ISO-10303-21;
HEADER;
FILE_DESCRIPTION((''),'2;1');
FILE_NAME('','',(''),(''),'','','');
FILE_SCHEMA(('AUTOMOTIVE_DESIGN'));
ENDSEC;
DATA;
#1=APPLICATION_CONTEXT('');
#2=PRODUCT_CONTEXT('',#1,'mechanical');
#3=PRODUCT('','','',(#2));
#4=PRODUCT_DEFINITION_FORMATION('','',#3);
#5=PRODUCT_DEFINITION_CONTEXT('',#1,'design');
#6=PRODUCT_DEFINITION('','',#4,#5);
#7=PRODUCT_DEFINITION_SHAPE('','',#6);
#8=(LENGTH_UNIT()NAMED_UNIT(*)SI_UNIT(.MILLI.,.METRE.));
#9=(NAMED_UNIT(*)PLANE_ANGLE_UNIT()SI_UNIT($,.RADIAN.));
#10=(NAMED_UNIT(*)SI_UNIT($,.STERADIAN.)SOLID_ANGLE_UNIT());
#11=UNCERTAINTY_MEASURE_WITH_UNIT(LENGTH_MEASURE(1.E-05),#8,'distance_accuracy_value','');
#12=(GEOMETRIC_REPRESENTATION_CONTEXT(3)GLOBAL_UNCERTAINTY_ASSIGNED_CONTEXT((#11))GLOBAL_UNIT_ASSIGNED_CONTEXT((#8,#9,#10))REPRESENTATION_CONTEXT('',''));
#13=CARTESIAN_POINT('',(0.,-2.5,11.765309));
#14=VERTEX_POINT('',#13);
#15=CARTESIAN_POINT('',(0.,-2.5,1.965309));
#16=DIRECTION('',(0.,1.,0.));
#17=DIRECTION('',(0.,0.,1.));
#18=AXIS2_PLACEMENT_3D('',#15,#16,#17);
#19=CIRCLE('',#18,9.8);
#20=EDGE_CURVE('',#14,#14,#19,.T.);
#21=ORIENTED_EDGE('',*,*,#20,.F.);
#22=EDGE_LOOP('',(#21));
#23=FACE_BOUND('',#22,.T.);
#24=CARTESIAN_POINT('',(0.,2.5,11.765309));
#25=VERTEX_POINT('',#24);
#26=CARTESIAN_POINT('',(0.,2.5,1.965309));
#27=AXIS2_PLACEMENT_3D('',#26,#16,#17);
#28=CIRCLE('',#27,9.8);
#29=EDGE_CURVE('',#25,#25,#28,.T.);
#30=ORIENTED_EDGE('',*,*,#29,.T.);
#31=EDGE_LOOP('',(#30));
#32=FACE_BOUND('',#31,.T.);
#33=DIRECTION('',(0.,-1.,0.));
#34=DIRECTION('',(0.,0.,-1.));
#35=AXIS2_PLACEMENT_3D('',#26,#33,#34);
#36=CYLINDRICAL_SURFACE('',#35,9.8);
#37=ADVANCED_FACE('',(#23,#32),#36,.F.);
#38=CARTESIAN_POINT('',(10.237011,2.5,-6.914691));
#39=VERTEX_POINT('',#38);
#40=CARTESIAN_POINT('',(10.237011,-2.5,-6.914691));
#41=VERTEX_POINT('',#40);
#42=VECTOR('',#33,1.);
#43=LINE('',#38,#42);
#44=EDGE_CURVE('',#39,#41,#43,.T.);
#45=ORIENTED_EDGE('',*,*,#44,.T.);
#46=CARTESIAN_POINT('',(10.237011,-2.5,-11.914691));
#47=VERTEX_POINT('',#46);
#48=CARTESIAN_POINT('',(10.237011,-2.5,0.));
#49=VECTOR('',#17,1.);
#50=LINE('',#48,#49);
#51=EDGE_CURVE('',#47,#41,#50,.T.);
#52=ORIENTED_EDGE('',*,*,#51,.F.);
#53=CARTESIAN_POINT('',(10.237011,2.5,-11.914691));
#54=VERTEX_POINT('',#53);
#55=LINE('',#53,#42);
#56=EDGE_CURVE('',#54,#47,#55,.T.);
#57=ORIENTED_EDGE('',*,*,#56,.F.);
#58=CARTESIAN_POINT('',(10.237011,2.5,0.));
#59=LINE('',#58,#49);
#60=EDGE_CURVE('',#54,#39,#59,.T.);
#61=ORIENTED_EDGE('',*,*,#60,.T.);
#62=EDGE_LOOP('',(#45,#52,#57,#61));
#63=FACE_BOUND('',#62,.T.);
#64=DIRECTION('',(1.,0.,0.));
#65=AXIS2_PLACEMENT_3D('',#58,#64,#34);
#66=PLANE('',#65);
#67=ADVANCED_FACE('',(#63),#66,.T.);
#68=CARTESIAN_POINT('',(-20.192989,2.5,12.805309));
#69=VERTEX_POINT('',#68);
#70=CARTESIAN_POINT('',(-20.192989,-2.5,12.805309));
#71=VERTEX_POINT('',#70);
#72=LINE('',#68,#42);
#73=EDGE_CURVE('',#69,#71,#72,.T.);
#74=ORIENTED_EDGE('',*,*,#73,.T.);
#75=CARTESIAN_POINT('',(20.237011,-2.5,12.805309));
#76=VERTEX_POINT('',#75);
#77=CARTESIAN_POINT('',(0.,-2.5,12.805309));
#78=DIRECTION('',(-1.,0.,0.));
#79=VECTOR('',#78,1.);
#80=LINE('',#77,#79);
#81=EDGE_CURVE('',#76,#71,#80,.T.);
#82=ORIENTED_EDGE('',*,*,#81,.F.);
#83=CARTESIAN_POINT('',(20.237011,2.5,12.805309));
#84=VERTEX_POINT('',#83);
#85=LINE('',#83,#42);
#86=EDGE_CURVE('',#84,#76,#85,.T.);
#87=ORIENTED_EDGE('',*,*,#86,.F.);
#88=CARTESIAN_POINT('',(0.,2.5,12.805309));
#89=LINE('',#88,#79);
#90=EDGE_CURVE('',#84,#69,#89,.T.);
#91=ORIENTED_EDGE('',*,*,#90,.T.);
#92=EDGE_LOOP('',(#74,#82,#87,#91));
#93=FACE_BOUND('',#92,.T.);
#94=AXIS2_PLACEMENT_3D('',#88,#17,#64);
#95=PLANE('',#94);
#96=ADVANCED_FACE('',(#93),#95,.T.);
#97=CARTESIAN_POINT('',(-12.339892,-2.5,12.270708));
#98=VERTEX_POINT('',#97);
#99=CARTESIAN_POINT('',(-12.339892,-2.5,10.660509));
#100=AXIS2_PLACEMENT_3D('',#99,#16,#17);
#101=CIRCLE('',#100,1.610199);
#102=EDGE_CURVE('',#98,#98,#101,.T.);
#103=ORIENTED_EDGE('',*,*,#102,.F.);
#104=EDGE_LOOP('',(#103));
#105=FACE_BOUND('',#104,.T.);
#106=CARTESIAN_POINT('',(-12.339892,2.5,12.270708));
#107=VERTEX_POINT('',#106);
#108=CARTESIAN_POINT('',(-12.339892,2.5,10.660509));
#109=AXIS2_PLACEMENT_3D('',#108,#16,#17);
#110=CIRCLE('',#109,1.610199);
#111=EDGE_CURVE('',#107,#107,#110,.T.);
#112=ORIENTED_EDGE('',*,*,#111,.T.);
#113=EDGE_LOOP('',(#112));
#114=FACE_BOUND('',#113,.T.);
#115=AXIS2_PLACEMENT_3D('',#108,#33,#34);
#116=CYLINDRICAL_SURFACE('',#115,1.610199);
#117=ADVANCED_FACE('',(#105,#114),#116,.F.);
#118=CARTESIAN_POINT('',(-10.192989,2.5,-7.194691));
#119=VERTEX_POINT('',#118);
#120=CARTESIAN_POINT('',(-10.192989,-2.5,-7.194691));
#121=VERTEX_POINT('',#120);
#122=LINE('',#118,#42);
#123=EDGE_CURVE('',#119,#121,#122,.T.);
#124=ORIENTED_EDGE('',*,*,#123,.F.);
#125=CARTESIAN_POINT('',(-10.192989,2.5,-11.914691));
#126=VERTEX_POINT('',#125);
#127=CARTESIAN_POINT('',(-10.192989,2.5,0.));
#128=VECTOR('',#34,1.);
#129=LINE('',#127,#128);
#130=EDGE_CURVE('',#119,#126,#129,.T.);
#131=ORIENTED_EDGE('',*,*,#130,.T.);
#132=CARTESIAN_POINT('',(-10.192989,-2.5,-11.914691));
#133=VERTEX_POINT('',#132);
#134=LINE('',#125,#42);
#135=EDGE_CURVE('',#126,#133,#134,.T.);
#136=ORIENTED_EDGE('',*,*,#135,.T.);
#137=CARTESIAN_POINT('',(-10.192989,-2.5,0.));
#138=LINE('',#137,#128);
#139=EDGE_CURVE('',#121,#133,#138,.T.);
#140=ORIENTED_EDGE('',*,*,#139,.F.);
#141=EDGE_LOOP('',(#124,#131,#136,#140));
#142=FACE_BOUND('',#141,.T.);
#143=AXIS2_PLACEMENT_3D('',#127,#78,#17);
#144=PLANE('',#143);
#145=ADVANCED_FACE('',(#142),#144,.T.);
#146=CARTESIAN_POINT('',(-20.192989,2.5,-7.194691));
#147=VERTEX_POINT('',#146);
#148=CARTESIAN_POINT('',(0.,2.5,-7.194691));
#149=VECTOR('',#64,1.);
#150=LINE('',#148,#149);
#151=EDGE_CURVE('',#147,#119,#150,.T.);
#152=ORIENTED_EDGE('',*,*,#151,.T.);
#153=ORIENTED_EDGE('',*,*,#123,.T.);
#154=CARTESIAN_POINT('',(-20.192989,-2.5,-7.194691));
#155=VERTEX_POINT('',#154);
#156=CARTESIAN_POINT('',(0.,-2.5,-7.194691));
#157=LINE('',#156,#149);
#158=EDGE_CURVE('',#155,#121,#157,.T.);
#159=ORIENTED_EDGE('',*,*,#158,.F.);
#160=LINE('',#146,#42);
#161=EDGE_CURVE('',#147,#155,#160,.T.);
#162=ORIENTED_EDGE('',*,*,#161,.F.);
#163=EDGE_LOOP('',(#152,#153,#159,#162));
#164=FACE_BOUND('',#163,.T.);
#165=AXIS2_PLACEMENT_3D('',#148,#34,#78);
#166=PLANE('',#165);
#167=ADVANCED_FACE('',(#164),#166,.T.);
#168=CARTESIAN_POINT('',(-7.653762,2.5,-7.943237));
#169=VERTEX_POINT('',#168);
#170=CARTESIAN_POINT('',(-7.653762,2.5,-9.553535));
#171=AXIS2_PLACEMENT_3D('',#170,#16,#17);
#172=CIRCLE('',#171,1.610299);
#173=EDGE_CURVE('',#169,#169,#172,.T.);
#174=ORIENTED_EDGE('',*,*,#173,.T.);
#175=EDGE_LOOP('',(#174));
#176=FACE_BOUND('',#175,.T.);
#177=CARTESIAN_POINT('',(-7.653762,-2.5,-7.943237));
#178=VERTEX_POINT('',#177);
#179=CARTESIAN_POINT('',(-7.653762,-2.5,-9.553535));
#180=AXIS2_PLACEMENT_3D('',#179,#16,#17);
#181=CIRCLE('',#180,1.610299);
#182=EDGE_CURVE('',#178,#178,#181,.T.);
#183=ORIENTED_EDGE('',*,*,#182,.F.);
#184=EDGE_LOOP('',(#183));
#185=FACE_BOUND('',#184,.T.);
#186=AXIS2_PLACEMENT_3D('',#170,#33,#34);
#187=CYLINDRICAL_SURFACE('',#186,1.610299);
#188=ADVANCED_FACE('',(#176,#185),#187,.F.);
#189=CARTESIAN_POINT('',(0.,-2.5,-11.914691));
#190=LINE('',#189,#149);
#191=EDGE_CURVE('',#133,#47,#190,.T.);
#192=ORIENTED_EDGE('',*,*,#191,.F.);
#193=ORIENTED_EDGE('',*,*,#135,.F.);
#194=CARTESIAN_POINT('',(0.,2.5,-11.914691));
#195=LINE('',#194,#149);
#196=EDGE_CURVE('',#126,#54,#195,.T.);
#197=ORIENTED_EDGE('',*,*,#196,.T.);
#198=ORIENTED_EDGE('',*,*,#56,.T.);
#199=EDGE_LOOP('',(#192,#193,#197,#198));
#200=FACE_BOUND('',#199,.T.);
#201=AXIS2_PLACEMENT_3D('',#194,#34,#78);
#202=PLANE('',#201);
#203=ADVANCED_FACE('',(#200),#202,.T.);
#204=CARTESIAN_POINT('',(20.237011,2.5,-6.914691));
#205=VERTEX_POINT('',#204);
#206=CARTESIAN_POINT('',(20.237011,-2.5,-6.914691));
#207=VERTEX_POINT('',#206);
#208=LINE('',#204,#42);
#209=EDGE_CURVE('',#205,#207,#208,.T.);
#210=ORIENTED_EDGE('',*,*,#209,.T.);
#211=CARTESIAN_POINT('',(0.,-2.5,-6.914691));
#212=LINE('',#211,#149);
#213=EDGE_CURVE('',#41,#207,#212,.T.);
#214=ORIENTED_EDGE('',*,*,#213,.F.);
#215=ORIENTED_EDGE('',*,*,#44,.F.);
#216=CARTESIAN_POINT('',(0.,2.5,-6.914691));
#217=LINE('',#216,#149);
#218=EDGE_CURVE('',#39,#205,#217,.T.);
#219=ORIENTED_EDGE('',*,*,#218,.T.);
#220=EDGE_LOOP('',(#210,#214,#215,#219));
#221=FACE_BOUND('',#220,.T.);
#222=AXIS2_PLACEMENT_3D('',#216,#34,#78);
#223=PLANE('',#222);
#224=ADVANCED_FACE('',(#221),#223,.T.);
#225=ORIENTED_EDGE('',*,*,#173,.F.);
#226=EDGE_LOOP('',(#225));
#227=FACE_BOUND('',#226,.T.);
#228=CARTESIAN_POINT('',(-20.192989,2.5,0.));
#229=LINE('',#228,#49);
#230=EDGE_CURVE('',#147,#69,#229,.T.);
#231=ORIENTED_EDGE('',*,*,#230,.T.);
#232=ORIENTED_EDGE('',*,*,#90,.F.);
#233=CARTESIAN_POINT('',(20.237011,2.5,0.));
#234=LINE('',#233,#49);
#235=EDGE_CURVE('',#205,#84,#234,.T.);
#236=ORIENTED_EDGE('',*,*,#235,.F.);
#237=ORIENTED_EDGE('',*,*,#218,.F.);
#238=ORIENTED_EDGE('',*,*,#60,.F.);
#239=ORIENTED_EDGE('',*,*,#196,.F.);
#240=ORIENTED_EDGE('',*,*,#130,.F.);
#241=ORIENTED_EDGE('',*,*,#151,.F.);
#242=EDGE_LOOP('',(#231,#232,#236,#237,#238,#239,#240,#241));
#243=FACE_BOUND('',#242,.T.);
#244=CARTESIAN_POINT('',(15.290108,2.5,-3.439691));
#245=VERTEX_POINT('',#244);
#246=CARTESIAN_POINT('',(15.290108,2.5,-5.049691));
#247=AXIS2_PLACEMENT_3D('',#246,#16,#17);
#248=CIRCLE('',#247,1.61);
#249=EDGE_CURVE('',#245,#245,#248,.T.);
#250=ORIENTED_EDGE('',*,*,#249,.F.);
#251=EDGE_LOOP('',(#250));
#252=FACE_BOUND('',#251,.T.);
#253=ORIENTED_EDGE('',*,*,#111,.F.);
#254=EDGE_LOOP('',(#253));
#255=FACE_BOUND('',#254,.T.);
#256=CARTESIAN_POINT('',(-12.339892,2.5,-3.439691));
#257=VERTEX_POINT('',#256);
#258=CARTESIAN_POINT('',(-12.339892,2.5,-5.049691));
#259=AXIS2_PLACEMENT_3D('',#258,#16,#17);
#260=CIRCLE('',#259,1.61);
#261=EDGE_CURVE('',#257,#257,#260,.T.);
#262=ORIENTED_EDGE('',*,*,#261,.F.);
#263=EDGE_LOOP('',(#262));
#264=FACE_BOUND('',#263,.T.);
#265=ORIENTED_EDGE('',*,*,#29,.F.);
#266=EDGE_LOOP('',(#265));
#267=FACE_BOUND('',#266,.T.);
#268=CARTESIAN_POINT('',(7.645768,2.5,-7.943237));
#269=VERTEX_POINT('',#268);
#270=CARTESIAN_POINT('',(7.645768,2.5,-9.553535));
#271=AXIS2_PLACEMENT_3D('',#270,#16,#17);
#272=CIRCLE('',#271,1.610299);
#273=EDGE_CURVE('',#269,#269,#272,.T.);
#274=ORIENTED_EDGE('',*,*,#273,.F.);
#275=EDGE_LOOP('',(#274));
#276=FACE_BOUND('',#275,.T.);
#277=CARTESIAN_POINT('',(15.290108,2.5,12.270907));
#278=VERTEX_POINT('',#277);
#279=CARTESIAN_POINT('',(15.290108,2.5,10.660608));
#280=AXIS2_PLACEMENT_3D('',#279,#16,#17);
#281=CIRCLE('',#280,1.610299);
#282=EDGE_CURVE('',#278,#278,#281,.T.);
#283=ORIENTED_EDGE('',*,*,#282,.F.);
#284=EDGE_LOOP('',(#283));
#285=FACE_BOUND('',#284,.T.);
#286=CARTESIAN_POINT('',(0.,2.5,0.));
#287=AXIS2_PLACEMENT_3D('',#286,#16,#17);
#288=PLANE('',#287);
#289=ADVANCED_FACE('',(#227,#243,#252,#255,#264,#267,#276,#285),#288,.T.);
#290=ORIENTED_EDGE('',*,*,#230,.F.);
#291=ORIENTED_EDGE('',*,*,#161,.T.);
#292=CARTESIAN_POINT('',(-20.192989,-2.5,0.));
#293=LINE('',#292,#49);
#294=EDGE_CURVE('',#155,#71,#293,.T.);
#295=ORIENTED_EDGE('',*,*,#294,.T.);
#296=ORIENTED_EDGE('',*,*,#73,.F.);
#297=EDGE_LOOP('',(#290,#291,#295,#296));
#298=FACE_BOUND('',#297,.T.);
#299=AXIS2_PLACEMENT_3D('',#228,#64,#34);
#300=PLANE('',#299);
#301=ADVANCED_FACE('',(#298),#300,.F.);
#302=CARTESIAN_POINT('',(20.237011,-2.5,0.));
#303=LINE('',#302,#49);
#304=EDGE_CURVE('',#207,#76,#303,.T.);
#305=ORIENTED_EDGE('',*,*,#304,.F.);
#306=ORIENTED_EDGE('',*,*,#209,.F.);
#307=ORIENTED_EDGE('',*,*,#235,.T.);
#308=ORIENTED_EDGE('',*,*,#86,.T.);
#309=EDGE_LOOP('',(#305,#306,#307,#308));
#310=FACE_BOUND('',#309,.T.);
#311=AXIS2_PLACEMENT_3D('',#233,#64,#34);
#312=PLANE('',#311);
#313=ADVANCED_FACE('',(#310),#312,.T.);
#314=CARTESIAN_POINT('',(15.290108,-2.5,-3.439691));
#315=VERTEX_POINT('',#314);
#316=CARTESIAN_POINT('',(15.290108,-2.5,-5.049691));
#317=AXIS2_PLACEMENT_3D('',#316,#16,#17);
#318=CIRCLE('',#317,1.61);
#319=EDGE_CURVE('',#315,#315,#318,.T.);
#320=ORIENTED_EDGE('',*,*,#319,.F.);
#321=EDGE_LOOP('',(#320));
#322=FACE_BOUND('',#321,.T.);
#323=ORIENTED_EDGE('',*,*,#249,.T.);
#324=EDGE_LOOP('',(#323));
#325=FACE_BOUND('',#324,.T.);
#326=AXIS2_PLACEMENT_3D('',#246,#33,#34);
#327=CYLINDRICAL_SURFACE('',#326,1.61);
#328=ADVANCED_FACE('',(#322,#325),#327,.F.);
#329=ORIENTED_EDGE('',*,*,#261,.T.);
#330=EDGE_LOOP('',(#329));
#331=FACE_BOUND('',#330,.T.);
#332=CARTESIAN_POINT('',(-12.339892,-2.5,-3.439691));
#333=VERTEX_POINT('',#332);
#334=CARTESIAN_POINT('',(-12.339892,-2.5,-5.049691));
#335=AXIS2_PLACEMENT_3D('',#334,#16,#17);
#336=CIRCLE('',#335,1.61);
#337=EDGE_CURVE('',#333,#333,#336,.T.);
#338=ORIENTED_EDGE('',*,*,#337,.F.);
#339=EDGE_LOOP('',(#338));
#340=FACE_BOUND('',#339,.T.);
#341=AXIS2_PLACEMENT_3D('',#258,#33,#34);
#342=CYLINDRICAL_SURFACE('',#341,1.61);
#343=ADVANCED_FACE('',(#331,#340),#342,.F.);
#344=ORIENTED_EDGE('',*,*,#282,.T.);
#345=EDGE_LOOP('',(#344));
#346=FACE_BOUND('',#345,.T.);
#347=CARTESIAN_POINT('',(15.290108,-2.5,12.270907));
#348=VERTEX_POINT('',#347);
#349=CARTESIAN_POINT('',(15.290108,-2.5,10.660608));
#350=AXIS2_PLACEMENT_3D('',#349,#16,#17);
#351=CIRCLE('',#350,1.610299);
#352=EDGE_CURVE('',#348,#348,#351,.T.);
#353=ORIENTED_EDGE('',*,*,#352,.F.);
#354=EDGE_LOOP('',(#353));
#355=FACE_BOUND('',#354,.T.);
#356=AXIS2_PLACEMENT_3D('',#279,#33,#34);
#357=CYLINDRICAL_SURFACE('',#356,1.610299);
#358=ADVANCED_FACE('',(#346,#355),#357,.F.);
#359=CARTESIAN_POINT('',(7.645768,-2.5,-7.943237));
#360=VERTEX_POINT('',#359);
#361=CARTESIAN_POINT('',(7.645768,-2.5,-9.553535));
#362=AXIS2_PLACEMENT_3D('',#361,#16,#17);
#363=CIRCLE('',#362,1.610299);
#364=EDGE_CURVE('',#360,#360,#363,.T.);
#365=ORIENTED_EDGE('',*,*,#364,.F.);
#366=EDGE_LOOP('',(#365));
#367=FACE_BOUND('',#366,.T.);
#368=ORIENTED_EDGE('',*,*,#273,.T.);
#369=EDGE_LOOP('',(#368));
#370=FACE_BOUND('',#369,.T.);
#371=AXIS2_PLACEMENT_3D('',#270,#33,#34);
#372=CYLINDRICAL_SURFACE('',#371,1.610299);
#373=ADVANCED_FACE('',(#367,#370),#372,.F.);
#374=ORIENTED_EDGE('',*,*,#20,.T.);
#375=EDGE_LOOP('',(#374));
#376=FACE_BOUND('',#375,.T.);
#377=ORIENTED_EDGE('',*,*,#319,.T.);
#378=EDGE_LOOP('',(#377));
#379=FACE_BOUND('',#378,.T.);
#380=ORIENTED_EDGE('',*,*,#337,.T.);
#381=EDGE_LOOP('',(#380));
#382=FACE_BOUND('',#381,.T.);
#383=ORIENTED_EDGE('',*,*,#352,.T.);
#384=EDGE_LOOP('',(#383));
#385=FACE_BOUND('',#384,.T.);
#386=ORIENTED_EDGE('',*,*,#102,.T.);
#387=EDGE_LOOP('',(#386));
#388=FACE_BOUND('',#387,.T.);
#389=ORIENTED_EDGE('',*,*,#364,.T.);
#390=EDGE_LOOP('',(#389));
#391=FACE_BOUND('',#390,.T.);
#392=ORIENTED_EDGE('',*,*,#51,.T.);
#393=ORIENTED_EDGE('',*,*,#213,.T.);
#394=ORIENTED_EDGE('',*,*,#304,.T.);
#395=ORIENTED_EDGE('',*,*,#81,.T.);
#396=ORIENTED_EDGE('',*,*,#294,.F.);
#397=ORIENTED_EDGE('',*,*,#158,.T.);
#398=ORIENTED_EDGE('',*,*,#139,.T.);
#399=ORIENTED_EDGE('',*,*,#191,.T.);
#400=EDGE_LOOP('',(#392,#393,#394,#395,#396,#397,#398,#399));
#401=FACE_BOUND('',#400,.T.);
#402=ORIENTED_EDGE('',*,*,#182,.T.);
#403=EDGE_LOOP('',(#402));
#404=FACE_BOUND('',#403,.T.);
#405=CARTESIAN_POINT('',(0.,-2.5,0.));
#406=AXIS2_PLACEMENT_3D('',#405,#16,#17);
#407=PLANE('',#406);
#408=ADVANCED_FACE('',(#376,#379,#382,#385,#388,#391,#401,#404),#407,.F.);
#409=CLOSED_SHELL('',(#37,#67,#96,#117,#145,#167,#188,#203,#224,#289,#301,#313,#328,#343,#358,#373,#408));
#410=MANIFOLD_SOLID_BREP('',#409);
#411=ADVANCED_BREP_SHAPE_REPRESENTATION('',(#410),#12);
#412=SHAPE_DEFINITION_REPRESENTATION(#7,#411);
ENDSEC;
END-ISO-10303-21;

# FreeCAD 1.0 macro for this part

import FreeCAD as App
import Part
import Sketcher

V = App.Vector
Q = App.Units.Quantity


def add_polygon(sketch, points):
    """Adds a closed chain of lines whose ends are joined by coincident constraints."""
    first, n = sketch.GeometryCount, len(points)
    for a, b in zip(points, points[1:] + points[:1]):
        sketch.addGeometry(Part.LineSegment(App.Vector(*a, 0), App.Vector(*b, 0)), False)
    for i in range(n):
        sketch.addConstraint(Sketcher.Constraint("Coincident", first + i, 2, first + (i + 1) % n, 1))

doc = App.newDocument("Part")
params = doc.addObject("Spreadsheet::Sheet", "Params")
for row, (alias, value) in enumerate([
    ("sketch1_diameter", "19.6 mm"),
    ("sketch1_diameter2", "3.22 mm"),
    ("sketch1_width", "10 mm"),
    ("sketch1_height", "20 mm"),
    ("sketch1_height2", "5 mm"),
    ("pad1_length", "5 mm"),
], start=1):
    params.set(f"A{row}", alias)
    params.set(f"B{row}", "=" + value)
    params.setAlias(f"B{row}", alias)

body = doc.addObject("PartDesign::Body", "Body")

sketch1 = body.newObject("Sketcher::SketchObject", "Sketch")
sketch1.AttachmentSupport = (doc.getObject("XZ_Plane"), [""])
sketch1.MapMode = "FlatFace"
add_polygon(sketch1, [(-10.2, -7.2), (-20.2, -7.2), (-20.2, 12.8), (20.2, 12.8), (20.2, -6.9), (10.2, -6.9), (10.2, -11.9), (-10.2, -11.9)])
sketch1.addGeometry(Part.Circle(V(15.3, 10.7, 0), V(0, 0, 1), 1.6), False)
sketch1.addGeometry(Part.Circle(V(-12.3, 10.7, 0), V(0, 0, 1), 1.6), False)
sketch1.addGeometry(Part.Circle(V(0, 2, 0), V(0, 0, 1), 9.8), False)
sketch1.addGeometry(Part.Circle(V(15.3, -5, 0), V(0, 0, 1), 1.6), False)
sketch1.addGeometry(Part.Circle(V(7.6, -9.6, 0), V(0, 0, 1), 1.6), False)
sketch1.addGeometry(Part.Circle(V(-12.3, -5, 0), V(0, 0, 1), 1.6), False)
sketch1.addGeometry(Part.Circle(V(-7.7, -9.6, 0), V(0, 0, 1), 1.6), False)
sketch1.addConstraint(Sketcher.Constraint("Horizontal", 0))
sketch1.addConstraint(Sketcher.Constraint("Vertical", 1))
sketch1.addConstraint(Sketcher.Constraint("Horizontal", 2))
sketch1.addConstraint(Sketcher.Constraint("Vertical", 3))
sketch1.addConstraint(Sketcher.Constraint("Horizontal", 4))
sketch1.addConstraint(Sketcher.Constraint("Vertical", 5))
sketch1.addConstraint(Sketcher.Constraint("Horizontal", 6))
sketch1.addConstraint(Sketcher.Constraint("Vertical", 7))
sketch1.addConstraint(Sketcher.Constraint("Equal", 8, 12))
sketch1.addConstraint(Sketcher.Constraint("Equal", 11, 13))
sketch1.addConstraint(Sketcher.Constraint("Equal", 12, 14))
sketch1.addConstraint(Sketcher.Constraint("PointOnObject", 10, 3, -2))
sketch1.addConstraint(Sketcher.Constraint("Horizontal", 11, 3, 13, 3))
sketch1.addConstraint(Sketcher.Constraint("Horizontal", 12, 3, 14, 3))
sketch1.addConstraint(Sketcher.Constraint("Vertical", 8, 3, 11, 3))
sketch1.addConstraint(Sketcher.Constraint("Vertical", 9, 3, 13, 3))
sketch1.addConstraint(Sketcher.Constraint("Equal", 0, 4))
sketch1.addConstraint(Sketcher.Constraint("Diameter", 10, Q("19.6 mm")))
sketch1.addConstraint(Sketcher.Constraint("Diameter", 11, Q("3.22 mm")))
sketch1.addConstraint(Sketcher.Constraint("DistanceX", 0, 2, 0, 1, Q("10 mm")))
sketch1.addConstraint(Sketcher.Constraint("DistanceY", 1, 1, 1, 2, Q("20 mm")))
sketch1.addConstraint(Sketcher.Constraint("DistanceY", 5, 2, 5, 1, Q("5 mm")))
sketch1.addConstraint(Sketcher.Constraint("Diameter", 9, Q("3.220399 mm")))
sketch1.addConstraint(Sketcher.Constraint("DistanceX", 2, 1, 2, 2, Q("40.43 mm")))
sketch1.addConstraint(Sketcher.Constraint("DistanceY", 3, 2, 3, 1, Q("19.72 mm")))
sketch1.addConstraint(Sketcher.Constraint("DistanceX", 9, 3, 8, 3, Q("27.63 mm")))
sketch1.addConstraint(Sketcher.Constraint("DistanceY", 0, 2, 10, 3, Q("9.16 mm")))
sketch1.addConstraint(Sketcher.Constraint("Diameter", 8, Q("3.220598 mm")))
sketch1.addConstraint(Sketcher.Constraint("DistanceY", 11, 3, 10, 3, Q("7.015 mm")))
sketch1.addConstraint(Sketcher.Constraint("DistanceY", 10, 3, 9, 3, Q("8.695199 mm")))
sketch1.addConstraint(Sketcher.Constraint("DistanceY", 10, 3, 8, 3, Q("8.695299 mm")))
sketch1.addConstraint(Sketcher.Constraint("DistanceX", -1, 1, 8, 3, Q("15.290108 mm")))
sketch1.addConstraint(Sketcher.Constraint("DistanceY", -1, 1, 8, 3, Q("10.660608 mm")))
sketch1.addConstraint(Sketcher.Constraint("DistanceX", -1, 1, 12, 3, Q("7.645768 mm")))
sketch1.addConstraint(Sketcher.Constraint("DistanceX", 0, 2, -1, 1, Q("20.192989 mm")))
sketch1.addConstraint(Sketcher.Constraint("DistanceX", 13, 3, 14, 3, Q("4.68613 mm")))
sketch1.addConstraint(Sketcher.Constraint("DistanceY", 12, 3, -1, 1, Q("9.553535 mm")))
sketch1.setExpression("Constraints[25]", "Params.sketch1_diameter")
sketch1.setExpression("Constraints[26]", "Params.sketch1_diameter2")
sketch1.setExpression("Constraints[27]", "Params.sketch1_width")
sketch1.setExpression("Constraints[28]", "Params.sketch1_height")
sketch1.setExpression("Constraints[29]", "Params.sketch1_height2")
pad1 = body.newObject("PartDesign::Pad", "Pad")
pad1.Profile = sketch1
pad1.setExpression("Length", "Params.pad1_length")
pad1.Midplane = True

doc.recompute()
